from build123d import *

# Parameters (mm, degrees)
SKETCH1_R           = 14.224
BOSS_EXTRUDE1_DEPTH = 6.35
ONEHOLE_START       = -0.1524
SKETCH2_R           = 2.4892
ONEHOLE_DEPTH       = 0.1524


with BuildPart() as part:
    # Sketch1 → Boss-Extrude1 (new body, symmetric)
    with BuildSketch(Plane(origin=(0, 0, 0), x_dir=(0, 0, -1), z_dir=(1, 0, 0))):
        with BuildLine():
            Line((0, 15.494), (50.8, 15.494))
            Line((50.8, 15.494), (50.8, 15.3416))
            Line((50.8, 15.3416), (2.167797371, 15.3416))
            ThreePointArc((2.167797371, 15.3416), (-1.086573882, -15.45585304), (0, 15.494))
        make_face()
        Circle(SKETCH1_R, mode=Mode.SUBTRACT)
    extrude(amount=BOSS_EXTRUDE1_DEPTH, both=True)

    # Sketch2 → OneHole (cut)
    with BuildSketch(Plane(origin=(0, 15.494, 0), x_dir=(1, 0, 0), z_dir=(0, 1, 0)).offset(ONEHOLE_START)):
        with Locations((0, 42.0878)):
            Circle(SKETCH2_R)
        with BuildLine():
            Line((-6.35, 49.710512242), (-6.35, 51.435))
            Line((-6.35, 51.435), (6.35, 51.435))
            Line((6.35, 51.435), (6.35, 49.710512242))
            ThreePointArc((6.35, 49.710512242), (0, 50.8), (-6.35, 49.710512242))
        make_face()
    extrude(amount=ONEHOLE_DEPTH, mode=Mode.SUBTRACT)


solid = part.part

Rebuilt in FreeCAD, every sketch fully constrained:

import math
import FreeCAD as App
import Part
import Sketcher
Q = App.Units.Quantity

doc = App.newDocument("Part")
params = doc.addObject("Spreadsheet::Sheet", "Params")
for row, (alias, value) in enumerate([
    ("sketch1_diameter", "1.12 in"),
    ("sketch1_height", "2 in"),
    ("sketch1_radius", "0.61 in"),
    ("sketch1_width", "0.006 in"),
    ("pad1_length", "0.5 in"),
    ("sketch2_radius", "0.75 in"),
    ("sketch2_diameter", "0.196 in"),
    ("sketch2_width", "0.5 in"),
    ("pocket1_length", "0.006 in"),
], start=1):
    params.set(f"A{row}", alias)
    params.set(f"B{row}", "=" + value)
    params.setAlias(f"B{row}", alias)

body = doc.addObject("PartDesign::Body", "Body")

# Sketch on YZ plane
sketch1 = doc.addObject("Sketcher::SketchObject", "Sketch")
body.addObject(sketch1)
sketch1.AttachmentSupport = (doc.YZ_Plane, [""])
sketch1.MapMode = "FlatFace"
sketch1.addGeometry([
    Part.LineSegment(App.Vector(15.49, -50.8, 0), App.Vector(15.49, 0, 0)),  # 0
    Part.ArcOfCircle(Part.Circle(App.Vector(0, 0, 0), App.Vector(0, 0, 1), 15.49), math.radians(0), math.radians(352)),  # 1
    Part.LineSegment(App.Vector(15.34, -2.17, 0), App.Vector(15.34, -50.8, 0)),  # 2
    Part.LineSegment(App.Vector(15.34, -50.8, 0), App.Vector(15.49, -50.8, 0)),  # 3
    Part.Circle(App.Vector(0, 0, 0), App.Vector(0, 0, 1), 14.22),  # 4
], False)
sketch1.addConstraint([
    Sketcher.Constraint("Tangent", 0, 2, 1, 1),
    Sketcher.Constraint("Coincident", 1, 2, 2, 1),
    Sketcher.Constraint("Coincident", 2, 2, 3, 1),
    Sketcher.Constraint("Coincident", 3, 2, 0, 1),
    Sketcher.Constraint("Vertical", 0),
    Sketcher.Constraint("Vertical", 2),
    Sketcher.Constraint("Horizontal", 3),
    Sketcher.Constraint("Coincident", 1, 3, -1, 1),
    Sketcher.Constraint("Coincident", 4, 3, -1, 1),
    Sketcher.Constraint("Diameter", 4, Q("1.12 in")),
    Sketcher.Constraint("DistanceY", 0, 1, 0, 2, Q("2 in")),
    Sketcher.Constraint("Radius", 1, Q("0.61 in")),
    Sketcher.Constraint("DistanceX", 3, 1, 3, 2, Q("0.006 in")),
])
sketch1.setExpression("Constraints[9]", "Params.sketch1_diameter")
sketch1.setExpression("Constraints[10]", "Params.sketch1_height")
sketch1.setExpression("Constraints[11]", "Params.sketch1_radius")
sketch1.setExpression("Constraints[12]", "Params.sketch1_width")
pad1 = doc.addObject("PartDesign::Pad", "Pad")
body.addObject(pad1)
pad1.Profile = sketch1
pad1.setExpression("Length", "Params.pad1_length")
pad1.Midplane = True

# Sketch on XZ plane
sketch2 = doc.addObject("Sketcher::SketchObject", "Sketch001")
body.addObject(sketch2)
sketch2.AttachmentSupport = (doc.XZ_Plane, [""])
sketch2.MapMode = "FlatFace"
sketch2.AttachmentOffset = App.Placement(App.Vector(0, 0, -0.604 * 25.4), App.Rotation())
sketch2.addGeometry([
    Part.Circle(App.Vector(0, -42.1, 0), App.Vector(0, 0, 1), 2.5),  # 0
    Part.LineSegment(App.Vector(-6.3, -51.4, 0), App.Vector(-6.3, -49.7, 0)),  # 1
    Part.ArcOfCircle(Part.Circle(App.Vector(0, -31.8, 0), App.Vector(0, 0, 1), 19), math.radians(-109), math.radians(-71)),  # 2
    Part.LineSegment(App.Vector(6.3, -49.7, 0), App.Vector(6.3, -51.4, 0)),  # 3
    Part.LineSegment(App.Vector(6.3, -51.4, 0), App.Vector(-6.3, -51.4, 0)),  # 4
], False)
sketch2.addConstraint([
    Sketcher.Constraint("Coincident", 1, 2, 2, 1),
    Sketcher.Constraint("Coincident", 2, 2, 3, 1),
    Sketcher.Constraint("Coincident", 3, 2, 4, 1),
    Sketcher.Constraint("Coincident", 4, 2, 1, 1),
    Sketcher.Constraint("Vertical", 1),
    Sketcher.Constraint("Vertical", 3),
    Sketcher.Constraint("Horizontal", 4),
    Sketcher.Constraint("Symmetric", 1, 2, 2, 2, -2),
    Sketcher.Constraint("PointOnObject", 0, 3, -2),
    Sketcher.Constraint("Radius", 2, Q("0.75 in")),
    Sketcher.Constraint("Diameter", 0, Q("0.196 in")),
    Sketcher.Constraint("DistanceX", 4, 2, 4, 1, Q("0.5 in")),
    Sketcher.Constraint("DistanceY", 2, 3, -1, 1, Q("1.25 in")),
    Sketcher.Constraint("DistanceY", 0, 3, -1, 1, Q("1.657 in")),
    Sketcher.Constraint("DistanceY", 3, 2, -1, 1, Q("2.025 in")),
])
sketch2.setExpression("Constraints[9]", "Params.sketch2_radius")
sketch2.setExpression("Constraints[10]", "Params.sketch2_diameter")
sketch2.setExpression("Constraints[11]", "Params.sketch2_width")
pocket1 = doc.addObject("PartDesign::Pocket", "Pocket")
body.addObject(pocket1)
pocket1.Profile = sketch2
pocket1.setExpression("Length", "Params.pocket1_length")

doc.recompute()
